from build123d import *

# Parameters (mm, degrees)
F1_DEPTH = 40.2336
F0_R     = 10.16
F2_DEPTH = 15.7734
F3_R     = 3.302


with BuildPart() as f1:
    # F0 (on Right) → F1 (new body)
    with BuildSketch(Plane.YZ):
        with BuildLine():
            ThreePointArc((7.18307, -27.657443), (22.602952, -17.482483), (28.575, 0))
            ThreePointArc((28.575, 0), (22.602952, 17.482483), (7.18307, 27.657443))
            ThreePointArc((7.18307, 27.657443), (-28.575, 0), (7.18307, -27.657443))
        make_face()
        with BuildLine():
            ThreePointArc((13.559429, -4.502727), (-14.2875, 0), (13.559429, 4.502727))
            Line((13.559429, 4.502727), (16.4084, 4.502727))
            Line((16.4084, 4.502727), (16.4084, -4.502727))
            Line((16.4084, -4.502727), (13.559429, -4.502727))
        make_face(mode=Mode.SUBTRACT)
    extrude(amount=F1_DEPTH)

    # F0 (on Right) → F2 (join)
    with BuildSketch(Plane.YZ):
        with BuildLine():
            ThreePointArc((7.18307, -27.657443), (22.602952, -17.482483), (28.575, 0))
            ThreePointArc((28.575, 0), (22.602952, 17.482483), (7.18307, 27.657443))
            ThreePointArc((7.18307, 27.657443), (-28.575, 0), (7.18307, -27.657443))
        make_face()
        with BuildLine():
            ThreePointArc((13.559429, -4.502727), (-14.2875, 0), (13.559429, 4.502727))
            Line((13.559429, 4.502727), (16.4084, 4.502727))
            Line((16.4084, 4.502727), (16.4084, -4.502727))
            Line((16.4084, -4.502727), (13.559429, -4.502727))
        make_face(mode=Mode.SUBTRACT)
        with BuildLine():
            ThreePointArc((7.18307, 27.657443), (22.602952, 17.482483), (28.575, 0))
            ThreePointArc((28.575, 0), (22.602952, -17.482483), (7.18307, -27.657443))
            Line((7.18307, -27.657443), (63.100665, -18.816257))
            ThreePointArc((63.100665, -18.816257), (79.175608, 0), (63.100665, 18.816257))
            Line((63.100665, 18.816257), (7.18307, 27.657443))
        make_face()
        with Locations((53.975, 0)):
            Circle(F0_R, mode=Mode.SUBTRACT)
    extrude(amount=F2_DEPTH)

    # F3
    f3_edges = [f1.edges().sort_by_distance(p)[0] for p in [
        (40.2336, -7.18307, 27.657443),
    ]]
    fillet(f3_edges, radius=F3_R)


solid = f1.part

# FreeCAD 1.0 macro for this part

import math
import FreeCAD as App
import Part
import Sketcher
Q = App.Units.Quantity


def edges_at(feature, points):
    """Names of the edges that pass closest to the given points."""
    edges = feature.Shape.Edges
    near = lambda p: min(range(len(edges)), key=lambda i: edges[i].distToShape(Part.Vertex(*p))[0])
    return sorted({f"Edge{near(p) + 1}" for p in points})

doc = App.newDocument("Part")
body = doc.addObject("PartDesign::Body", "Body")

sketch1 = doc.addObject("Sketcher::SketchObject", "Sketch")
body.addObject(sketch1)
sketch1.AttachmentSupport = (doc.YZ_Plane, [""])
sketch1.MapMode = "FlatFace"
sketch1.addGeometry([
    Part.ArcOfCircle(Part.Circle(App.Vector(0, 0, 0), App.Vector(0, 0, 1), 28.6), math.radians(-75), math.radians(0)),
    Part.ArcOfCircle(Part.Circle(App.Vector(0, 0, 0), App.Vector(0, 0, 1), 28.6), math.radians(0), math.radians(75)),
    Part.ArcOfCircle(Part.Circle(App.Vector(0, 0, 0), App.Vector(0, 0, 1), 28.6), math.radians(75), math.radians(285)),
    Part.LineSegment(App.Vector(16.4, -4.5, 0), App.Vector(13.6, -4.5, 0)),
    Part.ArcOfCircle(Part.Circle(App.Vector(0, 0, 0), App.Vector(0, 0, 1), 14.3), math.radians(18), math.radians(342)),
    Part.LineSegment(App.Vector(13.6, 4.5, 0), App.Vector(16.4, 4.5, 0)),
    Part.LineSegment(App.Vector(16.4, 4.5, 0), App.Vector(16.4, -4.5, 0)),
], False)
sketch1.addConstraint([
    Sketcher.Constraint("Tangent", 0, 2, 1, 1),
    Sketcher.Constraint("Tangent", 1, 2, 2, 1),
    Sketcher.Constraint("Tangent", 2, 2, 0, 1),
    Sketcher.Constraint("Coincident", 3, 2, 4, 2),
    Sketcher.Constraint("Coincident", 4, 1, 5, 1),
    Sketcher.Constraint("Coincident", 5, 2, 6, 1),
    Sketcher.Constraint("Coincident", 6, 2, 3, 1),
    Sketcher.Constraint("Horizontal", 3),
    Sketcher.Constraint("Horizontal", 5),
    Sketcher.Constraint("Vertical", 6),
    Sketcher.Constraint("Coincident", 0, 3, -1, 1),
    Sketcher.Constraint("Coincident", 4, 3, -1, 1),
    Sketcher.Constraint("PointOnObject", 0, 2, -1),
    Sketcher.Constraint("Vertical", 1, 2, 2, 2),
    Sketcher.Constraint("Vertical", 3, 2, 4, 1),
    Sketcher.Constraint("Radius", 0, Q("1.125 in")),
    Sketcher.Constraint("Radius", 4, Q("0.5625 in")),
    Sketcher.Constraint("DistanceX", -1, 1, 5, 2, Q("0.646 in")),
    Sketcher.Constraint("DistanceX", 3, 2, 3, 1, 2.848971),
    Sketcher.Constraint("DistanceX", -1, 1, 1, 2, 7.18307),
])
pad1 = doc.addObject("PartDesign::Pad", "Pad")
body.addObject(pad1)
pad1.Profile = sketch1
pad1.Length = Q("1.584 in")

sketch2 = doc.addObject("Sketcher::SketchObject", "Sketch001")
body.addObject(sketch2)
sketch2.AttachmentSupport = (doc.YZ_Plane, [""])
sketch2.MapMode = "FlatFace"
sketch2.addGeometry([
    Part.ArcOfCircle(Part.Circle(App.Vector(0, 0, 0), App.Vector(0, 0, 1), 28.6), math.radians(75), math.radians(285)),
    Part.LineSegment(App.Vector(7.2, -27.7, 0), App.Vector(63.1, -18.8, 0)),
    Part.ArcOfCircle(Part.Circle(App.Vector(60.1, 0, 0), App.Vector(0, 0, 1), 19), math.radians(-81), math.radians(81)),
    Part.LineSegment(App.Vector(63.1, 18.8, 0), App.Vector(7.2, 27.7, 0)),
    Part.LineSegment(App.Vector(16.4, -4.5, 0), App.Vector(13.6, -4.5, 0)),
    Part.ArcOfCircle(Part.Circle(App.Vector(0, 0, 0), App.Vector(0, 0, 1), 14.3), math.radians(18), math.radians(342)),
    Part.LineSegment(App.Vector(13.6, 4.5, 0), App.Vector(16.4, 4.5, 0)),
    Part.LineSegment(App.Vector(16.4, 4.5, 0), App.Vector(16.4, -4.5, 0)),
    Part.Circle(App.Vector(54, 0, 0), App.Vector(0, 0, 1), 10.2),
], False)
sketch2.addConstraint([
    Sketcher.Constraint("Coincident", 0, 2, 1, 1),
    Sketcher.Constraint("Tangent", 1, 2, 2, 1),
    Sketcher.Constraint("Tangent", 2, 2, 3, 1),
    Sketcher.Constraint("Coincident", 3, 2, 0, 1),
    Sketcher.Constraint("Coincident", 4, 2, 5, 2),
    Sketcher.Constraint("Coincident", 5, 1, 6, 1),
    Sketcher.Constraint("Coincident", 6, 2, 7, 1),
    Sketcher.Constraint("Coincident", 7, 2, 4, 1),
    Sketcher.Constraint("Horizontal", 4),
    Sketcher.Constraint("Horizontal", 6),
    Sketcher.Constraint("Vertical", 7),
    Sketcher.Constraint("Coincident", 0, 3, -1, 1),
    Sketcher.Constraint("Coincident", 5, 3, -1, 1),
    Sketcher.Constraint("Symmetric", 1, 2, 2, 2, -1),
    Sketcher.Constraint("PointOnObject", 8, 3, -1),
    Sketcher.Constraint("Vertical", 4, 2, 5, 1),
    Sketcher.Constraint("Diameter", 8, Q("0.8 in")),
    Sketcher.Constraint("Radius", 2, Q("0.75 in")),
    Sketcher.Constraint("Radius", 0, Q("1.125 in")),
    Sketcher.Constraint("Radius", 5, Q("0.5625 in")),
    Sketcher.Constraint("DistanceX", -1, 1, 8, 3, Q("2.125 in")),
    Sketcher.Constraint("DistanceX", -1, 1, 6, 2, Q("0.646 in")),
    Sketcher.Constraint("DistanceX", 4, 2, 4, 1, 2.848971),
    Sketcher.Constraint("DistanceX", -1, 1, 2, 3, 60.125608),
    Sketcher.Constraint("DistanceX", -1, 1, 0, 2, 7.18307),
])
pad2 = doc.addObject("PartDesign::Pad", "Pad001")
body.addObject(pad2)
pad2.Profile = sketch2
pad2.Length = Q("0.621 in")
doc.recompute()

fillet = doc.addObject("PartDesign::Fillet", "Fillet")
body.addObject(fillet)
fillet.Base = (pad2, edges_at(pad2, [(40.234, -28.575, 0)]))
fillet.Radius = Q("0.13 in")

doc.recompute()
